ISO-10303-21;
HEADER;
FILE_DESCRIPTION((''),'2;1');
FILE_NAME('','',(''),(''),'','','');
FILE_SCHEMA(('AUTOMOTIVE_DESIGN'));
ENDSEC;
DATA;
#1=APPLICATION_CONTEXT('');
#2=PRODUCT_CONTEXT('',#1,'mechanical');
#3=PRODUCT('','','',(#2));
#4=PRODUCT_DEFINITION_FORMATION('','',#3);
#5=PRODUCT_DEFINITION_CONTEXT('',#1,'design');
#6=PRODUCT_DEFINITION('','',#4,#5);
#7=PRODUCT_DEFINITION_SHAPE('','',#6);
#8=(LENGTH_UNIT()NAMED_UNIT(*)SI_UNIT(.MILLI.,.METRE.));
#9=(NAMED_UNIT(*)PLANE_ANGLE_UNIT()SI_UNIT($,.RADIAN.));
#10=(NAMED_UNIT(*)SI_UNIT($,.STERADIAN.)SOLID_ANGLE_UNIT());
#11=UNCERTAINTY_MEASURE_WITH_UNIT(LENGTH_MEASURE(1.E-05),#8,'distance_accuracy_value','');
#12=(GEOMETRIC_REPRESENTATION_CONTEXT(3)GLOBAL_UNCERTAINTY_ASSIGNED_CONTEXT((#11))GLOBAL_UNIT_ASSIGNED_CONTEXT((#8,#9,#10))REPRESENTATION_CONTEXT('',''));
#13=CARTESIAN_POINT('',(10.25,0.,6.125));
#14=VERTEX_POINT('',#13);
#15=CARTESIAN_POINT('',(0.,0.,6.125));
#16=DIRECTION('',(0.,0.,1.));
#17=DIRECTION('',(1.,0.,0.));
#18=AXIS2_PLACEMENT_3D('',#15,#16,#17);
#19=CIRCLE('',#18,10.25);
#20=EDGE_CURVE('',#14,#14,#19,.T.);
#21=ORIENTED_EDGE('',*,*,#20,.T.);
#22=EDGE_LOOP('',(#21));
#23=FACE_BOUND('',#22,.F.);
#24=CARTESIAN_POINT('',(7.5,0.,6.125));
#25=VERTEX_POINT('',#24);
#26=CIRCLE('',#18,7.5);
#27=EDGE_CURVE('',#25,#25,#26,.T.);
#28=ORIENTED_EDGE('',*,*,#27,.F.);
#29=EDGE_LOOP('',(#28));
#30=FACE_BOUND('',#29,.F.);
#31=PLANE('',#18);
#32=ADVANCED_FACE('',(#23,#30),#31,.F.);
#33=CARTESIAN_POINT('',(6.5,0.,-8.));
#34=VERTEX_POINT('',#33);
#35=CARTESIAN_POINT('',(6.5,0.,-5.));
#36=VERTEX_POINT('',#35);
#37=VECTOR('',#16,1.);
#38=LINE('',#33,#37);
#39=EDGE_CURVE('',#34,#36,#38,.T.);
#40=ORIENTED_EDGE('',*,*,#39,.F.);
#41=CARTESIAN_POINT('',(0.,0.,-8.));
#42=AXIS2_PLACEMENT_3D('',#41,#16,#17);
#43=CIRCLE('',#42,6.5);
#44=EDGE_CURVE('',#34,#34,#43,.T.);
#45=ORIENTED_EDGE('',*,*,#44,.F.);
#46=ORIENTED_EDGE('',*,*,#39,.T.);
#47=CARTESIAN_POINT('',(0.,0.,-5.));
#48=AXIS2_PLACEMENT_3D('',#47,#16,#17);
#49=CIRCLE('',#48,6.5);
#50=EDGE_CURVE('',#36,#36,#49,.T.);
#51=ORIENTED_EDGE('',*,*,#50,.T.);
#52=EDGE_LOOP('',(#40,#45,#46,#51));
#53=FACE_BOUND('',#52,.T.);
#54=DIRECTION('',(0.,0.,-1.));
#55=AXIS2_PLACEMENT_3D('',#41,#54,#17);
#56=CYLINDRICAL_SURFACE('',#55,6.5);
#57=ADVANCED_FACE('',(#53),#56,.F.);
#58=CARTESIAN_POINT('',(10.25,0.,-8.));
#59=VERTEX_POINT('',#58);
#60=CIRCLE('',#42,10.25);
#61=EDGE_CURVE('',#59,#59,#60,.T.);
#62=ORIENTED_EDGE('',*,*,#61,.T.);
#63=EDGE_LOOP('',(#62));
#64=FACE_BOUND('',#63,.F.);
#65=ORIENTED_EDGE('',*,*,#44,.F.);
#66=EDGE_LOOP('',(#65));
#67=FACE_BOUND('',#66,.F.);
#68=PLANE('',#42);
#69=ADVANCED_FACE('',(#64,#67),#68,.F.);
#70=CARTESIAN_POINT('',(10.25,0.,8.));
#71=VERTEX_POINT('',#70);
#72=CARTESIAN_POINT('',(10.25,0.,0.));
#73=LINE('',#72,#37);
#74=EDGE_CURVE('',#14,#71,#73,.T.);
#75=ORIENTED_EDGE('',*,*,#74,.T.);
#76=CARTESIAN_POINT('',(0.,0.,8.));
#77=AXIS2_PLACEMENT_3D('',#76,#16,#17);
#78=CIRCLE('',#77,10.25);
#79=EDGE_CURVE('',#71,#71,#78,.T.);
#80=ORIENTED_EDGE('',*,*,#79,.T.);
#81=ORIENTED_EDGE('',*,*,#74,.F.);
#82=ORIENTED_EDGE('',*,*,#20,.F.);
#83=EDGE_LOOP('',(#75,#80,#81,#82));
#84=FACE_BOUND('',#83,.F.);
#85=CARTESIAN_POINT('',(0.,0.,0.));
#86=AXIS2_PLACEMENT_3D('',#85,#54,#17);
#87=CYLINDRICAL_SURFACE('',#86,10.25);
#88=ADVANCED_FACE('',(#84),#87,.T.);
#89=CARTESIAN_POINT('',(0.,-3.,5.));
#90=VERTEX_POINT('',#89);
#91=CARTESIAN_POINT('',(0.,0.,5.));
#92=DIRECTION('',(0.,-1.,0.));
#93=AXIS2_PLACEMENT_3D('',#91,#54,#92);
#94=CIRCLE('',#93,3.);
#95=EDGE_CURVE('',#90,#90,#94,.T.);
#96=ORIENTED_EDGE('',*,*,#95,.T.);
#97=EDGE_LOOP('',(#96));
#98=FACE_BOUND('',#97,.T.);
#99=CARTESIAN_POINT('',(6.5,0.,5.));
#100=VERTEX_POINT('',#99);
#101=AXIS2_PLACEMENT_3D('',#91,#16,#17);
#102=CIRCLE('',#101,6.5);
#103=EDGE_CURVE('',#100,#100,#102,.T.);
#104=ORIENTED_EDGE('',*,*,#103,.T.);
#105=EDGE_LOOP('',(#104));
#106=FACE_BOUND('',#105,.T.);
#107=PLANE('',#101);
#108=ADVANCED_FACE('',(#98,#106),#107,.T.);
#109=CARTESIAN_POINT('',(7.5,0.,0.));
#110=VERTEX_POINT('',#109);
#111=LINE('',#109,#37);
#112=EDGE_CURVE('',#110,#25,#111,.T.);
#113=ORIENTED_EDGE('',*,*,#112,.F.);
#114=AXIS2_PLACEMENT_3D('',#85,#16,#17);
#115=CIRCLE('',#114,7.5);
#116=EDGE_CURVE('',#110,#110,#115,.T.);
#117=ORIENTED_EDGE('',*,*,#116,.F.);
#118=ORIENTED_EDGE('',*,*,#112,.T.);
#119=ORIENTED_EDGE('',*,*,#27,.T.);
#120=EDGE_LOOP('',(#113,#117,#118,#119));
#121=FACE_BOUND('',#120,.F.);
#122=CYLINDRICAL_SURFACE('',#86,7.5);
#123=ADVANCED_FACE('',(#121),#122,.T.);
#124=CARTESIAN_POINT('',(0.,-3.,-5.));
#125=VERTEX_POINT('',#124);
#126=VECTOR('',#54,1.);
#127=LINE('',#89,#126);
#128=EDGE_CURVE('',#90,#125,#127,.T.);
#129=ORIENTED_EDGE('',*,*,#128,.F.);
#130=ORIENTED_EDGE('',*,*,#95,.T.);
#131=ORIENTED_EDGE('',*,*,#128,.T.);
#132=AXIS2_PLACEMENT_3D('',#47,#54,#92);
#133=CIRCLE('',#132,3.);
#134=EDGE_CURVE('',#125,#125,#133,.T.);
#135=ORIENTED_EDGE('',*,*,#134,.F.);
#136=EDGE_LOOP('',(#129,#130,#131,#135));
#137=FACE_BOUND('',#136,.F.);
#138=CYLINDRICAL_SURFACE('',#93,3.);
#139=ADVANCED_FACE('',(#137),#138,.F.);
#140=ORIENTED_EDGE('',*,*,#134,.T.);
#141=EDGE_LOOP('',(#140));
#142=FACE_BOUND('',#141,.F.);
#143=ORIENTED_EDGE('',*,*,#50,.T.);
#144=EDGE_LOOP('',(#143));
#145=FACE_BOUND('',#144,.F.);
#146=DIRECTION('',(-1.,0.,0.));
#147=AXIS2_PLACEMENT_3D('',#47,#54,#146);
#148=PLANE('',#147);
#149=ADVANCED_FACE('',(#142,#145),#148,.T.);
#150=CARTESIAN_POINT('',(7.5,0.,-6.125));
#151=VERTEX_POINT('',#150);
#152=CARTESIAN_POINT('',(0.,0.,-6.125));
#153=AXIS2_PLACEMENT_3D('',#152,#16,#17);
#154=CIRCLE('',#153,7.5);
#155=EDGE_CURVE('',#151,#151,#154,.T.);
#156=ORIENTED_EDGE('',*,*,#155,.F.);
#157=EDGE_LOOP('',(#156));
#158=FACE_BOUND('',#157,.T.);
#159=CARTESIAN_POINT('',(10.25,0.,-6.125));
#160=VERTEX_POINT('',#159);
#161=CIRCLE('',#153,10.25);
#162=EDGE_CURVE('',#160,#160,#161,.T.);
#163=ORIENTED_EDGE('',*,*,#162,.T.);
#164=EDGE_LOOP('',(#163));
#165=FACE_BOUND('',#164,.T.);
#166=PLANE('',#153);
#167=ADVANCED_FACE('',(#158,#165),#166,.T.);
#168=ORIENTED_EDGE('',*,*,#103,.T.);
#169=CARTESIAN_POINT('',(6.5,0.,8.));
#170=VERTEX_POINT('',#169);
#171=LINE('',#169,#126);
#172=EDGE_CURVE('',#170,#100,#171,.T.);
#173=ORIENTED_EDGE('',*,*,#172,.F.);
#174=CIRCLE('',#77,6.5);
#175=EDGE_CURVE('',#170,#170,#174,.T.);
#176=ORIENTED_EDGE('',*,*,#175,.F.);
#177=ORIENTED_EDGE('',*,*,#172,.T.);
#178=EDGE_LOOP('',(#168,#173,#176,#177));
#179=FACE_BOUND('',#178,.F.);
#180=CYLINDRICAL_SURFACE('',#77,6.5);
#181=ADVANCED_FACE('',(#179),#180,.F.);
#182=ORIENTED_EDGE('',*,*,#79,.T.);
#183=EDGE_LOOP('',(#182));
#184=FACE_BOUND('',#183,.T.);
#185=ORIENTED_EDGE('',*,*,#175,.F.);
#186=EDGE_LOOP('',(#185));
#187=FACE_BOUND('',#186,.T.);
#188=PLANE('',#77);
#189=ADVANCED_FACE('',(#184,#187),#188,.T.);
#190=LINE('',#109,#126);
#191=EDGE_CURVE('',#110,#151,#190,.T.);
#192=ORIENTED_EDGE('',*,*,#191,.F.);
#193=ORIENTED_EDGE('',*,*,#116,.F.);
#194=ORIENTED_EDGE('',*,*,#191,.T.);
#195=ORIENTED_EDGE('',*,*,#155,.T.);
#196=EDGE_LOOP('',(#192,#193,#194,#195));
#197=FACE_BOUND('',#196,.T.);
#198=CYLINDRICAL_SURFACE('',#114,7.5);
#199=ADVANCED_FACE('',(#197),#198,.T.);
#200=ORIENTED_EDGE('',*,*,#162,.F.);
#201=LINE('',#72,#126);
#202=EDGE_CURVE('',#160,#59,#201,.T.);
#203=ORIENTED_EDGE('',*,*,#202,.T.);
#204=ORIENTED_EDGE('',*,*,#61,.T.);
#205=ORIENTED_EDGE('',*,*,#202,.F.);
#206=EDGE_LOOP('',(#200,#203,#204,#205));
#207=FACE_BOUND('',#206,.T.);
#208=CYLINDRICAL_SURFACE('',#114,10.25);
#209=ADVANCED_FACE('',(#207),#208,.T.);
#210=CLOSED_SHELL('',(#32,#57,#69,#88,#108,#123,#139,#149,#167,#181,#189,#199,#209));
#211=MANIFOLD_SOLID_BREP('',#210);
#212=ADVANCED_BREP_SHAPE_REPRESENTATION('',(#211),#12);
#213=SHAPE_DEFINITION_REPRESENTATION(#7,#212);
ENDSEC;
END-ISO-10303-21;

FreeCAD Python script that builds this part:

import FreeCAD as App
import Part
import Sketcher

doc = App.newDocument("Part")
body = doc.addObject("PartDesign::Body", "Body")

sketch1 = body.newObject("Sketcher::SketchObject", "Sketch")
sketch1.AttachmentSupport = (doc.getObject("XY_Plane"), [""])
sketch1.MapMode = "FlatFace"
sketch1.addGeometry(Part.Circle(App.Vector(0, 0, 0), App.Vector(0, 0, 1), 10.25), False)
sketch1.addConstraint(Sketcher.Constraint("Coincident", 0, 3, -1, 1))
sketch1.addConstraint(Sketcher.Constraint("Diameter", 0, 20.5))
pad1 = body.newObject("PartDesign::Pad", "Pad")
pad1.Profile = sketch1
pad1.Length = 16
pad1.Midplane = True

sketch2 = body.newObject("Sketcher::SketchObject", "Sketch001")
sketch2.AttachmentSupport = (doc.getObject("XY_Plane"), [""])
sketch2.MapMode = "FlatFace"
sketch2.addGeometry(Part.Circle(App.Vector(0, 0, 0), App.Vector(0, 0, 1), 10.25), False)
sketch2.addGeometry(Part.Circle(App.Vector(0, 0, 0), App.Vector(0, 0, 1), 7.5), False)
sketch2.addConstraint(Sketcher.Constraint("Coincident", 0, 3, -1, 1))
sketch2.addConstraint(Sketcher.Constraint("Coincident", 1, 3, -1, 1))
sketch2.addConstraint(Sketcher.Constraint("Diameter", 1, 15.0))
sketch2.addConstraint(Sketcher.Constraint("Diameter", 0, 20.5))
pocket1 = body.newObject("PartDesign::Pocket", "Pocket")
pocket1.Profile = sketch2
pocket1.Length = 12.25
pocket1.Midplane = True

sketch3 = body.newObject("Sketcher::SketchObject", "Sketch002")
sketch3.AttachmentSupport = (doc.getObject("XY_Plane"), [""])
sketch3.MapMode = "FlatFace"
sketch3.AttachmentOffset = App.Placement(App.Vector(0, 0, 8), App.Rotation())
sketch3.addGeometry(Part.Circle(App.Vector(0, 0, 0), App.Vector(0, 0, 1), 6.5), False)
sketch3.addConstraint(Sketcher.Constraint("Coincident", 0, 3, -1, 1))
sketch3.addConstraint(Sketcher.Constraint("Diameter", 0, 13.0))
pocket2 = body.newObject("PartDesign::Pocket", "Pocket001")
pocket2.Profile = sketch3
pocket2.Length = 3
doc.recompute()

mirrored = body.newObject("PartDesign::Mirrored", "Mirrored")
mirrored.Originals = [pocket2]
mirrored.MirrorPlane = (doc.getObject("XY_Plane"), [""])
body.Tip = mirrored

sketch4 = body.newObject("Sketcher::SketchObject", "Sketch003")
sketch4.AttachmentSupport = (doc.getObject("XY_Plane"), [""])
sketch4.MapMode = "FlatFace"
sketch4.AttachmentOffset = App.Placement(App.Vector(0, 0, 5), App.Rotation())
sketch4.addGeometry(Part.Circle(App.Vector(0, 0, 0), App.Vector(0, 0, 1), 3), False)
sketch4.addConstraint(Sketcher.Constraint("Coincident", 0, 3, -1, 1))
sketch4.addConstraint(Sketcher.Constraint("Diameter", 0, 6.0))
doc.recompute()
hole = body.newObject("PartDesign::Hole", "Hole")
hole.Profile = sketch4
hole.ThreadType = "None"
hole.Diameter = 6
hole.DepthType = "ThroughAll"

doc.recompute()
